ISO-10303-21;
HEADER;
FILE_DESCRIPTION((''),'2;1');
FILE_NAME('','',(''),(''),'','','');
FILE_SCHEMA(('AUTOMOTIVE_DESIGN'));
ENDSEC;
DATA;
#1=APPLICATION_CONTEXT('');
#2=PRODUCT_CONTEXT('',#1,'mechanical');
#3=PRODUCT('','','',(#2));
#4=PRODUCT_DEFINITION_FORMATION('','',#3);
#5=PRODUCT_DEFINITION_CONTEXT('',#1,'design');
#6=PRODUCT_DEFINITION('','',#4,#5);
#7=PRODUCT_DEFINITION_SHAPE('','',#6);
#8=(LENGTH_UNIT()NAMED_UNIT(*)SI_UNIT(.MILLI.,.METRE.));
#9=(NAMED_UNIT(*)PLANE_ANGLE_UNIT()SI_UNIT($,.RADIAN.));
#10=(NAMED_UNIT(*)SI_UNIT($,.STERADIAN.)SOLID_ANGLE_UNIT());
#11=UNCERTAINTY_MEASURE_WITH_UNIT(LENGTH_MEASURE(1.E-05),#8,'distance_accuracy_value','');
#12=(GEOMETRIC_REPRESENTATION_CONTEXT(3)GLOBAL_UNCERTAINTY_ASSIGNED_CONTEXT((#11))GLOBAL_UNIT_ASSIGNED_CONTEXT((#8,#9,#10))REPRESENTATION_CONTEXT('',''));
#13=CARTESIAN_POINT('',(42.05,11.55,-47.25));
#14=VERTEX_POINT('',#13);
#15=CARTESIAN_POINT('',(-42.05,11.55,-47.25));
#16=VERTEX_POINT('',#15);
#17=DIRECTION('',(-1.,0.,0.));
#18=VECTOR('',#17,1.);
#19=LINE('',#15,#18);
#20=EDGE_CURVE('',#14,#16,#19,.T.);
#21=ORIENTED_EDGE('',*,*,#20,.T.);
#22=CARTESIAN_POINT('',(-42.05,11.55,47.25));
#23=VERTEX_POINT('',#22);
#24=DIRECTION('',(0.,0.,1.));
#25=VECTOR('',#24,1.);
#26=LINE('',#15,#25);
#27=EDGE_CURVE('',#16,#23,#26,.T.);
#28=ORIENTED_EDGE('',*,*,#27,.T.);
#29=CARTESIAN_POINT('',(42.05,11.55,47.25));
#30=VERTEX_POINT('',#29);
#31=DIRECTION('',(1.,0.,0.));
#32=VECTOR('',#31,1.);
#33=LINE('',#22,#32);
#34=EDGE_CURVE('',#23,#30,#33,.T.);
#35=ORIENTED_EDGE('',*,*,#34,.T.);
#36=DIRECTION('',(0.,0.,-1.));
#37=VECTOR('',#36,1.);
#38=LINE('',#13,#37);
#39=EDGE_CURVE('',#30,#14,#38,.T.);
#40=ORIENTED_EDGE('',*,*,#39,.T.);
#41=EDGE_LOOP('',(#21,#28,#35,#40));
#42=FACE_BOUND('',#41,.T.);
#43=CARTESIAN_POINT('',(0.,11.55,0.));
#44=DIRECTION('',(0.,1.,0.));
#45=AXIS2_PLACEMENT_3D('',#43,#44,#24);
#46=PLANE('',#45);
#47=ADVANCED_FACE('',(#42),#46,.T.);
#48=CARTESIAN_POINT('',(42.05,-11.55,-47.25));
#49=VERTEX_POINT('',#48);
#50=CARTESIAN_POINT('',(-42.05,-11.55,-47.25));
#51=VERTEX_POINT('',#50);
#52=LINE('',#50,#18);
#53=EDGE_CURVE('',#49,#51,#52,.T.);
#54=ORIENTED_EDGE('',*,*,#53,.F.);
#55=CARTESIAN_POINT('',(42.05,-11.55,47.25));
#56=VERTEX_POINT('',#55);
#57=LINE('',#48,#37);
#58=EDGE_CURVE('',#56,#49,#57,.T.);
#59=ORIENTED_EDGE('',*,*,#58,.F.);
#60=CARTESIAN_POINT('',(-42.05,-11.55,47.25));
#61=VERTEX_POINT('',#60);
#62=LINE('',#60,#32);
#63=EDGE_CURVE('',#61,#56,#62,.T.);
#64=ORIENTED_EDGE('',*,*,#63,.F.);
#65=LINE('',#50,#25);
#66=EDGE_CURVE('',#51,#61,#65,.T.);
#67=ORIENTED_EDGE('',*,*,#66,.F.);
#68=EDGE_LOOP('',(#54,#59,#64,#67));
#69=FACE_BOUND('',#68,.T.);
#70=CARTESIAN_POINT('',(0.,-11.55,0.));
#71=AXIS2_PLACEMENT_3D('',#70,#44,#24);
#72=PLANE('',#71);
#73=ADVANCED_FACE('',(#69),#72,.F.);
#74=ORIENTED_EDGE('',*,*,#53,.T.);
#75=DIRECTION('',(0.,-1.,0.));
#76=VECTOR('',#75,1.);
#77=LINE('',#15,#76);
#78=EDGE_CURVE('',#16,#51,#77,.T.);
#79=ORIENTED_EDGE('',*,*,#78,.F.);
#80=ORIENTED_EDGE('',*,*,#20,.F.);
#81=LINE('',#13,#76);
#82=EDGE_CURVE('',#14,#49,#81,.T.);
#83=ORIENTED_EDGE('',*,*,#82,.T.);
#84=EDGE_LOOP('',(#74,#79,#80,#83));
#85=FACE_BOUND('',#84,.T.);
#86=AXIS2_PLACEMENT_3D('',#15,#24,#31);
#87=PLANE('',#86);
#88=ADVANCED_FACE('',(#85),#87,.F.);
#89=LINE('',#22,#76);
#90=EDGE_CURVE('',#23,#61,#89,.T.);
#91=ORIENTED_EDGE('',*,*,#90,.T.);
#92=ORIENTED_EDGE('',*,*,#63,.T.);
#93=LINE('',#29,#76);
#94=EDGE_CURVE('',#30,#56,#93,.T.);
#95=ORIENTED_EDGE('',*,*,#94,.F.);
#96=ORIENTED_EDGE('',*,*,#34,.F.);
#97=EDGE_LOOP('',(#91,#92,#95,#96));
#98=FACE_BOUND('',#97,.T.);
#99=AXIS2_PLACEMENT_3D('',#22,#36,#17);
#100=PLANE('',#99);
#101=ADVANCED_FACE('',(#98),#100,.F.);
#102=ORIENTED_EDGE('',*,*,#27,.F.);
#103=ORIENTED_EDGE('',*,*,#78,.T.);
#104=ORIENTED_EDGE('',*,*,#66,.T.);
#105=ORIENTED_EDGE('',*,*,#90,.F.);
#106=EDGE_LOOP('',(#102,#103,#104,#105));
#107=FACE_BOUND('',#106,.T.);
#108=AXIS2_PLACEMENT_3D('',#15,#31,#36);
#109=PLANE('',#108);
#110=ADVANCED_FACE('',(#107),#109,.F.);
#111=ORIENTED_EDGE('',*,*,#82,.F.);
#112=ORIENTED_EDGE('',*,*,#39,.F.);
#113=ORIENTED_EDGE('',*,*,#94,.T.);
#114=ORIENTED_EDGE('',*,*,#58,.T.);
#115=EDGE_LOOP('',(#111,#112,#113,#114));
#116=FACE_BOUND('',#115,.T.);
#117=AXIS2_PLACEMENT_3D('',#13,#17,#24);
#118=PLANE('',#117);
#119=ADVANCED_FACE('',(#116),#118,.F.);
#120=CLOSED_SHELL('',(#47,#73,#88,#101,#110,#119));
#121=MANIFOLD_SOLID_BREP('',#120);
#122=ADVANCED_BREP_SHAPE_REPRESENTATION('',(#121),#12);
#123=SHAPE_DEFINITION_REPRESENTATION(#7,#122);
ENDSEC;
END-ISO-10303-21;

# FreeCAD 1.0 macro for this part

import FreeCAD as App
import Part
import Sketcher

V = App.Vector


def add_polygon(sketch, points):
    """Adds a closed chain of lines whose ends are joined by coincident constraints."""
    first, n = sketch.GeometryCount, len(points)
    for a, b in zip(points, points[1:] + points[:1]):
        sketch.addGeometry(Part.LineSegment(App.Vector(*a, 0), App.Vector(*b, 0)), False)
    for i in range(n):
        sketch.addConstraint(Sketcher.Constraint("Coincident", first + i, 2, first + (i + 1) % n, 1))

doc = App.newDocument("Part")
body = doc.addObject("PartDesign::Body", "Body")

# Sketch on XZ plane
sketch1 = doc.addObject("Sketcher::SketchObject", "Sketch")
body.addObject(sketch1)
sketch1.AttachmentSupport = (doc.XZ_Plane, [""])
sketch1.MapMode = "FlatFace"
add_polygon(sketch1, [(-42, -47), (-42, 47), (42, 47), (42, -47)])  # lines 0-3
sketch1.addConstraint([
    Sketcher.Constraint("Vertical", 0),
    Sketcher.Constraint("Horizontal", 1),
    Sketcher.Constraint("Vertical", 2),
    Sketcher.Constraint("Horizontal", 3),
    Sketcher.Constraint("Symmetric", 0, 2, 2, 2, -1, 1),
    Sketcher.Constraint("DistanceX", 1, 1, 1, 2, 84.1),
    Sketcher.Constraint("DistanceY", 0, 1, 0, 2, 94.5),
])
pad1 = doc.addObject("PartDesign::Pad", "Pad")
body.addObject(pad1)
pad1.Profile = sketch1
pad1.Length = 23.1
pad1.Midplane = True

doc.recompute()
